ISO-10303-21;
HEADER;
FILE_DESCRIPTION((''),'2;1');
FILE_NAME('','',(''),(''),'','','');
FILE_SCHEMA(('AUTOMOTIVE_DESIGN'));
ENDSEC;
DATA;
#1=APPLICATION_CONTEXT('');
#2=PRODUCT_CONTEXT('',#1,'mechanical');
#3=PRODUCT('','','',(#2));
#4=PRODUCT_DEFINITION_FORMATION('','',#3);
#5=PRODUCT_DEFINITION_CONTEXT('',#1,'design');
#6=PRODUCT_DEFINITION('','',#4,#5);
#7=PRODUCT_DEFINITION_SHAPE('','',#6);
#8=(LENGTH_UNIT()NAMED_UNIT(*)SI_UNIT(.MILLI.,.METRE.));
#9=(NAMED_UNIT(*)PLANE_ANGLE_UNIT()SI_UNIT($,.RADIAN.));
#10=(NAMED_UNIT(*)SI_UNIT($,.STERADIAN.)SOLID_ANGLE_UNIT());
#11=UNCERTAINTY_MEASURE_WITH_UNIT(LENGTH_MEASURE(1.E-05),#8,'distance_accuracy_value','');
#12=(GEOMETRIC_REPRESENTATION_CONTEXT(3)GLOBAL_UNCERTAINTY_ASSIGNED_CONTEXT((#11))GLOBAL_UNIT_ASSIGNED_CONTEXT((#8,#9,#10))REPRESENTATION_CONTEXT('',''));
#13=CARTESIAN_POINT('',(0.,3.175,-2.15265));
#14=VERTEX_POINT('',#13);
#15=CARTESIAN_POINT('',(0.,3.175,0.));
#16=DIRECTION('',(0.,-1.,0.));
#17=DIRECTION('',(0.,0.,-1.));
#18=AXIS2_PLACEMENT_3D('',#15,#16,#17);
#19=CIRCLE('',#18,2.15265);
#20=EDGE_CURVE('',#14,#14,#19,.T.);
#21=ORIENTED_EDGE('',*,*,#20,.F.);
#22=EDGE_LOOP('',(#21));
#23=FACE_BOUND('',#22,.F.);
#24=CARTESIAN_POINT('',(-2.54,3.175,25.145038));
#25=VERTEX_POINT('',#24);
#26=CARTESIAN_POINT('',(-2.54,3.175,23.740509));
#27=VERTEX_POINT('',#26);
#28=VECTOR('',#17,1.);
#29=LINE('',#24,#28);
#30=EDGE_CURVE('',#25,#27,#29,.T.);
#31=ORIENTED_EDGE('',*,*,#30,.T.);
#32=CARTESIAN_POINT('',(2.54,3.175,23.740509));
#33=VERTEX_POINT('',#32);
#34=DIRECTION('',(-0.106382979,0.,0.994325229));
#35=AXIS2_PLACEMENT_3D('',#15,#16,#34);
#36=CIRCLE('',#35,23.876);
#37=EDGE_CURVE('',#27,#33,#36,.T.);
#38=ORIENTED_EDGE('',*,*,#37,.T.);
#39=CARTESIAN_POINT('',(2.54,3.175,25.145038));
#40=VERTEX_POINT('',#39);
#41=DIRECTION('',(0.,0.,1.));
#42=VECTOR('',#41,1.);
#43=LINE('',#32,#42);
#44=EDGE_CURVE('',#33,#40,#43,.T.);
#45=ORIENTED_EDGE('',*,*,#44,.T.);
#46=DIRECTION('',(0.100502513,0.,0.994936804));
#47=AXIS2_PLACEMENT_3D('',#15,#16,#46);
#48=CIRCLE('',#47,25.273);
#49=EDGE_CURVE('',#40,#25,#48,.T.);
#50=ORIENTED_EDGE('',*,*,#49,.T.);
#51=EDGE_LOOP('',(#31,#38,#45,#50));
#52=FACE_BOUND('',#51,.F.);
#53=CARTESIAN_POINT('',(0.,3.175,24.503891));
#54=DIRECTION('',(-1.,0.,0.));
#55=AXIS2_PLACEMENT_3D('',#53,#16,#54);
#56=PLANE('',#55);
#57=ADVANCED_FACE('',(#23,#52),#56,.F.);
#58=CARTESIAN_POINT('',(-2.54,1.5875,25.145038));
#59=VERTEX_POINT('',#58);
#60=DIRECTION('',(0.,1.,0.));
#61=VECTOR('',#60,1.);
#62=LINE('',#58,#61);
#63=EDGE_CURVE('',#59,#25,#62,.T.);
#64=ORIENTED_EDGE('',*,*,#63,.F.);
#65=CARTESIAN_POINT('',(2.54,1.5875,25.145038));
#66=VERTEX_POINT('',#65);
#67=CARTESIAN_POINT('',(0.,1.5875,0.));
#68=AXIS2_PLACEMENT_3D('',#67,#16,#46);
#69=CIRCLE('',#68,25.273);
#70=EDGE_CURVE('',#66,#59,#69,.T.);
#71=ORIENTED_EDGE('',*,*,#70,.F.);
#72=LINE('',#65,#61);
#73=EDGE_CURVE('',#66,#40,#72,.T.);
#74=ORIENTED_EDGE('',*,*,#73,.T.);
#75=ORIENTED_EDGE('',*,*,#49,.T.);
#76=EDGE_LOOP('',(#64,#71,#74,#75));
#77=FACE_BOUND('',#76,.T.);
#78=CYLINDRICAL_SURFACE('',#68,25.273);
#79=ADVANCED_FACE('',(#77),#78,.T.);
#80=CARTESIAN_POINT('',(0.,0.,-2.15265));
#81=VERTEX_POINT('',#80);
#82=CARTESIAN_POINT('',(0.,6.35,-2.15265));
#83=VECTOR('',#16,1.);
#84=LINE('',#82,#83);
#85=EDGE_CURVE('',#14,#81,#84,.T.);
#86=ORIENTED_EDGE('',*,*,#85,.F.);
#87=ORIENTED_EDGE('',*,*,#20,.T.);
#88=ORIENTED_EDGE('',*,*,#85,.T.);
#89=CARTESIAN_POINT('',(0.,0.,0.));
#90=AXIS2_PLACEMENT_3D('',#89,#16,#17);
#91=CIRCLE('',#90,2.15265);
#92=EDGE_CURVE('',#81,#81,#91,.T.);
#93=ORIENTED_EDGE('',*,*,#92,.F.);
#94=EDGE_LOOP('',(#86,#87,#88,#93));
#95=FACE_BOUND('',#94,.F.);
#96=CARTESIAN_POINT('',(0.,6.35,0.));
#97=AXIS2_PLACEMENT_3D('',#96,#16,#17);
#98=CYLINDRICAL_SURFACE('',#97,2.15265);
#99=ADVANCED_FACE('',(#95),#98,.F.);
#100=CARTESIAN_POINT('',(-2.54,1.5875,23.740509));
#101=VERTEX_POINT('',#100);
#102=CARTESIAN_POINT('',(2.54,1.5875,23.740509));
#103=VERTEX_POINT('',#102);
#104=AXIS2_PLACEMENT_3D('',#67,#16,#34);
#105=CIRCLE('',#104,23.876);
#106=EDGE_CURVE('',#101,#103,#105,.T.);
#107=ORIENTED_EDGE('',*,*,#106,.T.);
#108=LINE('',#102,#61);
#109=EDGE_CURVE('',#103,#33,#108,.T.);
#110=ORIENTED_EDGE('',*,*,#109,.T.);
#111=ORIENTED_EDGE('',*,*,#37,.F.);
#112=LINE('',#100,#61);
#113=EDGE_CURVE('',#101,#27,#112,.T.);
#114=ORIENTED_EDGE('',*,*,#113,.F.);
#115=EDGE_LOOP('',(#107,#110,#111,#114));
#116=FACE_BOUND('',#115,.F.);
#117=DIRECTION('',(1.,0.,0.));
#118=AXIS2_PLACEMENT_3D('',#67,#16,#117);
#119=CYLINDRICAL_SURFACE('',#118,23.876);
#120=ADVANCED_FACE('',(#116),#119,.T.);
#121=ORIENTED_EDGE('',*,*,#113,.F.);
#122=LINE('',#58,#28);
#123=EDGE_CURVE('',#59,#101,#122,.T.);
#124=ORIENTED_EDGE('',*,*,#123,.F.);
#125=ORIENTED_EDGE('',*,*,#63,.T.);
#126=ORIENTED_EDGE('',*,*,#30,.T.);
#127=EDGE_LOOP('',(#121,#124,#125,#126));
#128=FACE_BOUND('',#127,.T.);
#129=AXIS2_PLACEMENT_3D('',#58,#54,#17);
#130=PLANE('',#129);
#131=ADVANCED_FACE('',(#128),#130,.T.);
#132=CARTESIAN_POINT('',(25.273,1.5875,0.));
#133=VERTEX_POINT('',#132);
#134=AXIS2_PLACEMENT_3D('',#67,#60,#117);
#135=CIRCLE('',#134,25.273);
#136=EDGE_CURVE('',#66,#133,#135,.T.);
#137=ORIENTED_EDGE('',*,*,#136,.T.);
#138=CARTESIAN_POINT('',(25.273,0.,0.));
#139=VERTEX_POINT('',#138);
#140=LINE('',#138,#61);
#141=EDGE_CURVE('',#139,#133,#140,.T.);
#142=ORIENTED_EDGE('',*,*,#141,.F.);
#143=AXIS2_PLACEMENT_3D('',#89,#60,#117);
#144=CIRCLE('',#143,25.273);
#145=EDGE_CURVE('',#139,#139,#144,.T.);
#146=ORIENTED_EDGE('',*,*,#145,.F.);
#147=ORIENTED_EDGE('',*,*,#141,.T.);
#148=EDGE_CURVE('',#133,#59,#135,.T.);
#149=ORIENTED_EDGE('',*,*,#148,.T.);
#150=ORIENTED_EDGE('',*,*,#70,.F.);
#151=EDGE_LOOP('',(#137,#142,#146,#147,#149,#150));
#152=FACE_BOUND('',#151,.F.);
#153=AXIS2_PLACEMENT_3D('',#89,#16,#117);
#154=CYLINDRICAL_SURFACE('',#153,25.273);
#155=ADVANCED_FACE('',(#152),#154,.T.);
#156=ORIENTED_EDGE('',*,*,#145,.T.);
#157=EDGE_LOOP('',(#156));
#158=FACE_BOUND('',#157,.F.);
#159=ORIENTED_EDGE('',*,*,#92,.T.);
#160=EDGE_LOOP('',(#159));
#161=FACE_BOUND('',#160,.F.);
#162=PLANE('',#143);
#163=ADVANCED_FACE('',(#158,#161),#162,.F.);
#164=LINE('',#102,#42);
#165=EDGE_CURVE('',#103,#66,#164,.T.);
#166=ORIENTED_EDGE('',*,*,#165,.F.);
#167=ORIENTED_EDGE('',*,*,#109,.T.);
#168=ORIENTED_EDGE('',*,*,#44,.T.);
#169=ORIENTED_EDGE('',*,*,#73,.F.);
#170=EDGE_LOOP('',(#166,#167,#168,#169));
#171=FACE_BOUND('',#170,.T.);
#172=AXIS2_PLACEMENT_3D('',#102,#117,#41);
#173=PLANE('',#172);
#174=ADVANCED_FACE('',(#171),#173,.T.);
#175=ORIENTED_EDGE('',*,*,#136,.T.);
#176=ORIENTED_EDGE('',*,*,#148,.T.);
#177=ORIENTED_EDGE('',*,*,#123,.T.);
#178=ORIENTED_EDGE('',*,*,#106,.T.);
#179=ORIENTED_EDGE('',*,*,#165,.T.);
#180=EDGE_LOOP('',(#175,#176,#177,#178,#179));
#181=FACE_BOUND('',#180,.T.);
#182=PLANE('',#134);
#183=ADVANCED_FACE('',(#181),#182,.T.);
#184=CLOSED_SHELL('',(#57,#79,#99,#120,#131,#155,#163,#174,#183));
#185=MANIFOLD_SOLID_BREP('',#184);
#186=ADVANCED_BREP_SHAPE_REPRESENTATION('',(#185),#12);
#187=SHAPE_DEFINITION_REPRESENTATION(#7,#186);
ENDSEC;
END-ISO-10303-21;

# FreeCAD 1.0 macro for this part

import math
import FreeCAD as App
import Part
import Sketcher
from FreeCAD import Vector
Q = App.Units.Quantity

doc = App.newDocument("Part")
body = doc.addObject("PartDesign::Body", "Body")

# Sketch on XZ plane
sketch1 = body.newObject("Sketcher::SketchObject", "Sketch")
sketch1.AttachmentSupport = (doc.getObject("XZ_Plane"), [""])
sketch1.MapMode = "FlatFace"
sketch1.addGeometry(Part.Circle(Vector(0, 0, 0), Vector(0, 0, 1), 25.273), False)
sketch1.addConstraint(Sketcher.Constraint("Coincident", 0, 3, -1, 1))
sketch1.addConstraint(Sketcher.Constraint("Diameter", 0, Q("1.99 in")))
pad1 = body.newObject("PartDesign::Pad", "Pad")
pad1.Profile = sketch1
pad1.Length = Q("0.0625 in")
pad1.Reversed = True

# Sketch on XZ plane
sketch2 = body.newObject("Sketcher::SketchObject", "Sketch001")
sketch2.AttachmentSupport = (doc.getObject("XZ_Plane"), [""])
sketch2.MapMode = "FlatFace"
sketch2.AttachmentOffset = App.Placement(Vector(0, 0, -0.0625 * 25.4), App.Rotation())
sketch2.addGeometry(Part.Circle(Vector(0, 0, 0), Vector(0, 0, 1), 23.876), False)
sketch2.addConstraint(Sketcher.Constraint("Coincident", 0, 3, -1, 1))
sketch2.addConstraint(Sketcher.Constraint("Diameter", 0, Q("1.88 in")))
pad2 = body.newObject("PartDesign::Pad", "Pad001")
pad2.Profile = sketch2
pad2.Length = Q("0.0625 in")
pad2.Reversed = True

# Sketch on XZ plane
sketch3 = body.newObject("Sketcher::SketchObject", "Sketch002")
sketch3.AttachmentSupport = (doc.getObject("XZ_Plane"), [""])
sketch3.MapMode = "FlatFace"
sketch3.AttachmentOffset = App.Placement(Vector(0, 0, -0.0625 * 25.4), App.Rotation())
sketch3.addGeometry(Part.LineSegment(Vector(-2.54, 23.740509, 0), Vector(-2.54, 25.145038, 0)), False)
sketch3.addGeometry(Part.ArcOfCircle(Part.Circle(Vector(0, 0, 0), Vector(0, 0, 1), 25.273), math.radians(84.231892), math.radians(95.768108)), False)
sketch3.addGeometry(Part.LineSegment(Vector(2.54, 25.145038, 0), Vector(2.54, 23.740509, 0)), False)
sketch3.addGeometry(Part.ArcOfCircle(Part.Circle(Vector(0, 0, 0), Vector(0, 0, 1), 23.876), math.radians(83.893148), math.radians(96.106852)), False)
sketch3.addConstraint(Sketcher.Constraint("Coincident", 0, 2, 1, 2))
sketch3.addConstraint(Sketcher.Constraint("Coincident", 1, 1, 2, 1))
sketch3.addConstraint(Sketcher.Constraint("Coincident", 2, 2, 3, 1))
sketch3.addConstraint(Sketcher.Constraint("Coincident", 3, 2, 0, 1))
sketch3.addConstraint(Sketcher.Constraint("Vertical", 0))
sketch3.addConstraint(Sketcher.Constraint("Vertical", 2))
sketch3.addConstraint(Sketcher.Constraint("Coincident", 1, 3, -1, 1))
sketch3.addConstraint(Sketcher.Constraint("Coincident", 3, 3, -1, 1))
sketch3.addConstraint(Sketcher.Constraint("Horizontal", 0, 2, 1, 1))
sketch3.addConstraint(Sketcher.Constraint("Radius", 3, Q("0.94 in")))
sketch3.addConstraint(Sketcher.Constraint("Radius", 1, Q("0.995 in")))
sketch3.addConstraint(Sketcher.Constraint("DistanceX", 0, 2, -1, 1, Q("0.1 in")))
pad3 = body.newObject("PartDesign::Pad", "Pad002")
pad3.Profile = sketch3
pad3.Length = Q("0.0625 in")
pad3.Reversed = True

# Sketch on XZ plane
sketch4 = body.newObject("Sketcher::SketchObject", "Sketch003")
sketch4.AttachmentSupport = (doc.getObject("XZ_Plane"), [""])
sketch4.MapMode = "FlatFace"
sketch4.AttachmentOffset = App.Placement(Vector(0, 0, -0.125 * 25.4), App.Rotation())
sketch4.addGeometry(Part.Circle(Vector(0, 0, 0), Vector(0, 0, 1), 2.15265), False)
sketch4.addConstraint(Sketcher.Constraint("Coincident", 0, 3, -1, 1))
sketch4.addConstraint(Sketcher.Constraint("Diameter", 0, Q("0.1695 in")))
doc.recompute()
hole = body.newObject("PartDesign::Hole", "Hole")
hole.Profile = sketch4
hole.ThreadType = "None"
hole.Diameter = Q("0.1695 in")
hole.DepthType = "Dimension"
hole.Depth = Q("0.125 in")
hole.DrillPoint = "Flat"
hole.Reversed = True

doc.recompute()
